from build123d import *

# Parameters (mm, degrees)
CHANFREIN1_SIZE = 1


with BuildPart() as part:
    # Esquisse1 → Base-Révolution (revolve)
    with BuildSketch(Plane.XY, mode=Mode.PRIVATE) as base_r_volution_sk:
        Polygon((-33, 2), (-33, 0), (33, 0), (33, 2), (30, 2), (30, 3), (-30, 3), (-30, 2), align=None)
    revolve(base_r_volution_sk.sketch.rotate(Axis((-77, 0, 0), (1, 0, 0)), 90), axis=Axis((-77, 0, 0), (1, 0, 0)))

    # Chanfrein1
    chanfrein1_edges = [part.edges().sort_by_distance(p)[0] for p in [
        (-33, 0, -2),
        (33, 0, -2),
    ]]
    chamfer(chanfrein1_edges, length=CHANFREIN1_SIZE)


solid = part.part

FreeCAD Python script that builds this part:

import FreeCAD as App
import Part
import Sketcher

V = App.Vector


def edges_at(feature, points):
    """Names of the edges that pass closest to the given points."""
    edges = feature.Shape.Edges
    near = lambda p: min(range(len(edges)), key=lambda i: edges[i].distToShape(Part.Vertex(*p))[0])
    return sorted({f"Edge{near(p) + 1}" for p in points})


def add_polygon(sketch, points):
    """Adds a closed chain of lines whose ends are joined by coincident constraints."""
    first, n = sketch.GeometryCount, len(points)
    for a, b in zip(points, points[1:] + points[:1]):
        sketch.addGeometry(Part.LineSegment(App.Vector(*a, 0), App.Vector(*b, 0)), False)
    for i in range(n):
        sketch.addConstraint(Sketcher.Constraint("Coincident", first + i, 2, first + (i + 1) % n, 1))

doc = App.newDocument("Part")
body = doc.addObject("PartDesign::Body", "Body")

# Sketch on XY plane
sketch1 = doc.addObject("Sketcher::SketchObject", "Sketch")
body.addObject(sketch1)
sketch1.AttachmentSupport = (doc.XY_Plane, [""])
sketch1.MapMode = "FlatFace"
add_polygon(sketch1, [(-33, 2), (-33, 0), (33, 0), (33, 2), (30, 2), (30, 3), (-30, 3), (-30, 2)])  # lines 0-7
sketch1.addConstraint([
    Sketcher.Constraint("Vertical", 0),
    Sketcher.Constraint("Horizontal", 1),
    Sketcher.Constraint("Vertical", 2),
    Sketcher.Constraint("Horizontal", 3),
    Sketcher.Constraint("Vertical", 4),
    Sketcher.Constraint("Horizontal", 5),
    Sketcher.Constraint("Vertical", 6),
    Sketcher.Constraint("Horizontal", 7),
    Sketcher.Constraint("Symmetric", 0, 2, 1, 2, -1, 1),
    Sketcher.Constraint("Symmetric", 3, 2, 6, 2, -2),
    Sketcher.Constraint("DistanceX", 1, 1, 1, 2, 66.0),
    Sketcher.Constraint("DistanceX", 3, 2, 3, 1, 3.0),
    Sketcher.Constraint("DistanceY", 0, 2, 0, 1, 2.0),
    Sketcher.Constraint("DistanceY", 4, 1, 4, 2, 1.0),
])
revolution = doc.addObject("PartDesign::Revolution", "Revolution")
body.addObject(revolution)
revolution.Profile = sketch1
revolution.ReferenceAxis = (sketch1, ["H_Axis"])
revolution.Angle = 360
doc.recompute()

chamfer = doc.addObject("PartDesign::Chamfer", "Chamfer")
body.addObject(chamfer)
chamfer.Base = (revolution, edges_at(revolution, [(-33, 0, -2), (33, 0, -2)]))
chamfer.Size = 1

doc.recompute()
